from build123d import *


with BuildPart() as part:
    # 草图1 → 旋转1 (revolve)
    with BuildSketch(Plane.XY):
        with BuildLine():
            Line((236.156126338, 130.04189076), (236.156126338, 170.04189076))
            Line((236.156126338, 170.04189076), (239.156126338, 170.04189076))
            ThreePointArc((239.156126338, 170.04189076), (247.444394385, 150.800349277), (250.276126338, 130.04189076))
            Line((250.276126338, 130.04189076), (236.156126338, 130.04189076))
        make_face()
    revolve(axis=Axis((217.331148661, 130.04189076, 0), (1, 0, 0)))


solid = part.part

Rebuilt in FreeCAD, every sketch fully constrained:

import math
import FreeCAD as App
import Part
import Sketcher
from FreeCAD import Vector
Q = App.Units.Quantity

doc = App.newDocument("Part")
params = doc.addObject("Spreadsheet::Sheet", "Params")
for row, (alias, value) in enumerate([
    ("sketch1_width", "3 mm"),
    ("sketch1_height", "40 mm"),
    ("sketch1_width2", "14.12 mm"),
    ("revolution_angle", "360 deg"),
], start=1):
    params.set(f"A{row}", alias)
    params.set(f"B{row}", "=" + value)
    params.setAlias(f"B{row}", alias)

body = doc.addObject("PartDesign::Body", "Body")

# Sketch on XY plane
sketch1 = body.newObject("Sketcher::SketchObject", "Sketch")
sketch1.AttachmentSupport = (doc.getObject("XY_Plane"), [""])
sketch1.MapMode = "FlatFace"
sketch1.addGeometry([
    Part.LineSegment(Vector(236.2, 170, 0), Vector(236.2, 130, 0)),
    Part.LineSegment(Vector(236.2, 130, 0), Vector(250.3, 130, 0)),
    Part.ArcOfCircle(Part.Circle(Vector(172.8, 130, 0), Vector(0, 0, 1), 77.5), math.radians(0), math.radians(31)),
    Part.LineSegment(Vector(239.2, 170, 0), Vector(236.2, 170, 0)),
], False)
sketch1.addGeometry(Part.LineSegment(Vector(172.8, 130, 0), Vector(250.3, 130, 0)), True)  # axis
sketch1.addConstraint([
    Sketcher.Constraint("Coincident", 0, 2, 1, 1),
    Sketcher.Constraint("Coincident", 1, 2, 2, 1),
    Sketcher.Constraint("Coincident", 2, 2, 3, 1),
    Sketcher.Constraint("Coincident", 3, 2, 0, 1),
    Sketcher.Constraint("Vertical", 0),
    Sketcher.Constraint("Horizontal", 1),
    Sketcher.Constraint("Horizontal", 3),
    Sketcher.Constraint("Horizontal", 4),
    Sketcher.Constraint("Coincident", 4, 1, 2, 3),
    Sketcher.Constraint("Coincident", 4, 2, 1, 2),
    Sketcher.Constraint("DistanceX", 3, 2, 3, 1, Q("3 mm")),
    Sketcher.Constraint("DistanceY", 0, 2, 0, 1, Q("40 mm")),
    Sketcher.Constraint("DistanceX", 1, 1, 1, 2, Q("14.12 mm")),
    Sketcher.Constraint("DistanceX", -1, 1, 2, 3, Q("172.77368 mm")),
    Sketcher.Constraint("DistanceY", -1, 1, 2, 3, Q("130.041891 mm")),
])
sketch1.setExpression("Constraints[10]", "Params.sketch1_width")
sketch1.setExpression("Constraints[11]", "Params.sketch1_height")
sketch1.setExpression("Constraints[12]", "Params.sketch1_width2")
revolution = body.newObject("PartDesign::Revolution", "Revolution")
revolution.Profile = sketch1
revolution.ReferenceAxis = (sketch1, ["Axis0"])
revolution.setExpression("Angle", "Params.revolution_angle")

doc.recompute()
